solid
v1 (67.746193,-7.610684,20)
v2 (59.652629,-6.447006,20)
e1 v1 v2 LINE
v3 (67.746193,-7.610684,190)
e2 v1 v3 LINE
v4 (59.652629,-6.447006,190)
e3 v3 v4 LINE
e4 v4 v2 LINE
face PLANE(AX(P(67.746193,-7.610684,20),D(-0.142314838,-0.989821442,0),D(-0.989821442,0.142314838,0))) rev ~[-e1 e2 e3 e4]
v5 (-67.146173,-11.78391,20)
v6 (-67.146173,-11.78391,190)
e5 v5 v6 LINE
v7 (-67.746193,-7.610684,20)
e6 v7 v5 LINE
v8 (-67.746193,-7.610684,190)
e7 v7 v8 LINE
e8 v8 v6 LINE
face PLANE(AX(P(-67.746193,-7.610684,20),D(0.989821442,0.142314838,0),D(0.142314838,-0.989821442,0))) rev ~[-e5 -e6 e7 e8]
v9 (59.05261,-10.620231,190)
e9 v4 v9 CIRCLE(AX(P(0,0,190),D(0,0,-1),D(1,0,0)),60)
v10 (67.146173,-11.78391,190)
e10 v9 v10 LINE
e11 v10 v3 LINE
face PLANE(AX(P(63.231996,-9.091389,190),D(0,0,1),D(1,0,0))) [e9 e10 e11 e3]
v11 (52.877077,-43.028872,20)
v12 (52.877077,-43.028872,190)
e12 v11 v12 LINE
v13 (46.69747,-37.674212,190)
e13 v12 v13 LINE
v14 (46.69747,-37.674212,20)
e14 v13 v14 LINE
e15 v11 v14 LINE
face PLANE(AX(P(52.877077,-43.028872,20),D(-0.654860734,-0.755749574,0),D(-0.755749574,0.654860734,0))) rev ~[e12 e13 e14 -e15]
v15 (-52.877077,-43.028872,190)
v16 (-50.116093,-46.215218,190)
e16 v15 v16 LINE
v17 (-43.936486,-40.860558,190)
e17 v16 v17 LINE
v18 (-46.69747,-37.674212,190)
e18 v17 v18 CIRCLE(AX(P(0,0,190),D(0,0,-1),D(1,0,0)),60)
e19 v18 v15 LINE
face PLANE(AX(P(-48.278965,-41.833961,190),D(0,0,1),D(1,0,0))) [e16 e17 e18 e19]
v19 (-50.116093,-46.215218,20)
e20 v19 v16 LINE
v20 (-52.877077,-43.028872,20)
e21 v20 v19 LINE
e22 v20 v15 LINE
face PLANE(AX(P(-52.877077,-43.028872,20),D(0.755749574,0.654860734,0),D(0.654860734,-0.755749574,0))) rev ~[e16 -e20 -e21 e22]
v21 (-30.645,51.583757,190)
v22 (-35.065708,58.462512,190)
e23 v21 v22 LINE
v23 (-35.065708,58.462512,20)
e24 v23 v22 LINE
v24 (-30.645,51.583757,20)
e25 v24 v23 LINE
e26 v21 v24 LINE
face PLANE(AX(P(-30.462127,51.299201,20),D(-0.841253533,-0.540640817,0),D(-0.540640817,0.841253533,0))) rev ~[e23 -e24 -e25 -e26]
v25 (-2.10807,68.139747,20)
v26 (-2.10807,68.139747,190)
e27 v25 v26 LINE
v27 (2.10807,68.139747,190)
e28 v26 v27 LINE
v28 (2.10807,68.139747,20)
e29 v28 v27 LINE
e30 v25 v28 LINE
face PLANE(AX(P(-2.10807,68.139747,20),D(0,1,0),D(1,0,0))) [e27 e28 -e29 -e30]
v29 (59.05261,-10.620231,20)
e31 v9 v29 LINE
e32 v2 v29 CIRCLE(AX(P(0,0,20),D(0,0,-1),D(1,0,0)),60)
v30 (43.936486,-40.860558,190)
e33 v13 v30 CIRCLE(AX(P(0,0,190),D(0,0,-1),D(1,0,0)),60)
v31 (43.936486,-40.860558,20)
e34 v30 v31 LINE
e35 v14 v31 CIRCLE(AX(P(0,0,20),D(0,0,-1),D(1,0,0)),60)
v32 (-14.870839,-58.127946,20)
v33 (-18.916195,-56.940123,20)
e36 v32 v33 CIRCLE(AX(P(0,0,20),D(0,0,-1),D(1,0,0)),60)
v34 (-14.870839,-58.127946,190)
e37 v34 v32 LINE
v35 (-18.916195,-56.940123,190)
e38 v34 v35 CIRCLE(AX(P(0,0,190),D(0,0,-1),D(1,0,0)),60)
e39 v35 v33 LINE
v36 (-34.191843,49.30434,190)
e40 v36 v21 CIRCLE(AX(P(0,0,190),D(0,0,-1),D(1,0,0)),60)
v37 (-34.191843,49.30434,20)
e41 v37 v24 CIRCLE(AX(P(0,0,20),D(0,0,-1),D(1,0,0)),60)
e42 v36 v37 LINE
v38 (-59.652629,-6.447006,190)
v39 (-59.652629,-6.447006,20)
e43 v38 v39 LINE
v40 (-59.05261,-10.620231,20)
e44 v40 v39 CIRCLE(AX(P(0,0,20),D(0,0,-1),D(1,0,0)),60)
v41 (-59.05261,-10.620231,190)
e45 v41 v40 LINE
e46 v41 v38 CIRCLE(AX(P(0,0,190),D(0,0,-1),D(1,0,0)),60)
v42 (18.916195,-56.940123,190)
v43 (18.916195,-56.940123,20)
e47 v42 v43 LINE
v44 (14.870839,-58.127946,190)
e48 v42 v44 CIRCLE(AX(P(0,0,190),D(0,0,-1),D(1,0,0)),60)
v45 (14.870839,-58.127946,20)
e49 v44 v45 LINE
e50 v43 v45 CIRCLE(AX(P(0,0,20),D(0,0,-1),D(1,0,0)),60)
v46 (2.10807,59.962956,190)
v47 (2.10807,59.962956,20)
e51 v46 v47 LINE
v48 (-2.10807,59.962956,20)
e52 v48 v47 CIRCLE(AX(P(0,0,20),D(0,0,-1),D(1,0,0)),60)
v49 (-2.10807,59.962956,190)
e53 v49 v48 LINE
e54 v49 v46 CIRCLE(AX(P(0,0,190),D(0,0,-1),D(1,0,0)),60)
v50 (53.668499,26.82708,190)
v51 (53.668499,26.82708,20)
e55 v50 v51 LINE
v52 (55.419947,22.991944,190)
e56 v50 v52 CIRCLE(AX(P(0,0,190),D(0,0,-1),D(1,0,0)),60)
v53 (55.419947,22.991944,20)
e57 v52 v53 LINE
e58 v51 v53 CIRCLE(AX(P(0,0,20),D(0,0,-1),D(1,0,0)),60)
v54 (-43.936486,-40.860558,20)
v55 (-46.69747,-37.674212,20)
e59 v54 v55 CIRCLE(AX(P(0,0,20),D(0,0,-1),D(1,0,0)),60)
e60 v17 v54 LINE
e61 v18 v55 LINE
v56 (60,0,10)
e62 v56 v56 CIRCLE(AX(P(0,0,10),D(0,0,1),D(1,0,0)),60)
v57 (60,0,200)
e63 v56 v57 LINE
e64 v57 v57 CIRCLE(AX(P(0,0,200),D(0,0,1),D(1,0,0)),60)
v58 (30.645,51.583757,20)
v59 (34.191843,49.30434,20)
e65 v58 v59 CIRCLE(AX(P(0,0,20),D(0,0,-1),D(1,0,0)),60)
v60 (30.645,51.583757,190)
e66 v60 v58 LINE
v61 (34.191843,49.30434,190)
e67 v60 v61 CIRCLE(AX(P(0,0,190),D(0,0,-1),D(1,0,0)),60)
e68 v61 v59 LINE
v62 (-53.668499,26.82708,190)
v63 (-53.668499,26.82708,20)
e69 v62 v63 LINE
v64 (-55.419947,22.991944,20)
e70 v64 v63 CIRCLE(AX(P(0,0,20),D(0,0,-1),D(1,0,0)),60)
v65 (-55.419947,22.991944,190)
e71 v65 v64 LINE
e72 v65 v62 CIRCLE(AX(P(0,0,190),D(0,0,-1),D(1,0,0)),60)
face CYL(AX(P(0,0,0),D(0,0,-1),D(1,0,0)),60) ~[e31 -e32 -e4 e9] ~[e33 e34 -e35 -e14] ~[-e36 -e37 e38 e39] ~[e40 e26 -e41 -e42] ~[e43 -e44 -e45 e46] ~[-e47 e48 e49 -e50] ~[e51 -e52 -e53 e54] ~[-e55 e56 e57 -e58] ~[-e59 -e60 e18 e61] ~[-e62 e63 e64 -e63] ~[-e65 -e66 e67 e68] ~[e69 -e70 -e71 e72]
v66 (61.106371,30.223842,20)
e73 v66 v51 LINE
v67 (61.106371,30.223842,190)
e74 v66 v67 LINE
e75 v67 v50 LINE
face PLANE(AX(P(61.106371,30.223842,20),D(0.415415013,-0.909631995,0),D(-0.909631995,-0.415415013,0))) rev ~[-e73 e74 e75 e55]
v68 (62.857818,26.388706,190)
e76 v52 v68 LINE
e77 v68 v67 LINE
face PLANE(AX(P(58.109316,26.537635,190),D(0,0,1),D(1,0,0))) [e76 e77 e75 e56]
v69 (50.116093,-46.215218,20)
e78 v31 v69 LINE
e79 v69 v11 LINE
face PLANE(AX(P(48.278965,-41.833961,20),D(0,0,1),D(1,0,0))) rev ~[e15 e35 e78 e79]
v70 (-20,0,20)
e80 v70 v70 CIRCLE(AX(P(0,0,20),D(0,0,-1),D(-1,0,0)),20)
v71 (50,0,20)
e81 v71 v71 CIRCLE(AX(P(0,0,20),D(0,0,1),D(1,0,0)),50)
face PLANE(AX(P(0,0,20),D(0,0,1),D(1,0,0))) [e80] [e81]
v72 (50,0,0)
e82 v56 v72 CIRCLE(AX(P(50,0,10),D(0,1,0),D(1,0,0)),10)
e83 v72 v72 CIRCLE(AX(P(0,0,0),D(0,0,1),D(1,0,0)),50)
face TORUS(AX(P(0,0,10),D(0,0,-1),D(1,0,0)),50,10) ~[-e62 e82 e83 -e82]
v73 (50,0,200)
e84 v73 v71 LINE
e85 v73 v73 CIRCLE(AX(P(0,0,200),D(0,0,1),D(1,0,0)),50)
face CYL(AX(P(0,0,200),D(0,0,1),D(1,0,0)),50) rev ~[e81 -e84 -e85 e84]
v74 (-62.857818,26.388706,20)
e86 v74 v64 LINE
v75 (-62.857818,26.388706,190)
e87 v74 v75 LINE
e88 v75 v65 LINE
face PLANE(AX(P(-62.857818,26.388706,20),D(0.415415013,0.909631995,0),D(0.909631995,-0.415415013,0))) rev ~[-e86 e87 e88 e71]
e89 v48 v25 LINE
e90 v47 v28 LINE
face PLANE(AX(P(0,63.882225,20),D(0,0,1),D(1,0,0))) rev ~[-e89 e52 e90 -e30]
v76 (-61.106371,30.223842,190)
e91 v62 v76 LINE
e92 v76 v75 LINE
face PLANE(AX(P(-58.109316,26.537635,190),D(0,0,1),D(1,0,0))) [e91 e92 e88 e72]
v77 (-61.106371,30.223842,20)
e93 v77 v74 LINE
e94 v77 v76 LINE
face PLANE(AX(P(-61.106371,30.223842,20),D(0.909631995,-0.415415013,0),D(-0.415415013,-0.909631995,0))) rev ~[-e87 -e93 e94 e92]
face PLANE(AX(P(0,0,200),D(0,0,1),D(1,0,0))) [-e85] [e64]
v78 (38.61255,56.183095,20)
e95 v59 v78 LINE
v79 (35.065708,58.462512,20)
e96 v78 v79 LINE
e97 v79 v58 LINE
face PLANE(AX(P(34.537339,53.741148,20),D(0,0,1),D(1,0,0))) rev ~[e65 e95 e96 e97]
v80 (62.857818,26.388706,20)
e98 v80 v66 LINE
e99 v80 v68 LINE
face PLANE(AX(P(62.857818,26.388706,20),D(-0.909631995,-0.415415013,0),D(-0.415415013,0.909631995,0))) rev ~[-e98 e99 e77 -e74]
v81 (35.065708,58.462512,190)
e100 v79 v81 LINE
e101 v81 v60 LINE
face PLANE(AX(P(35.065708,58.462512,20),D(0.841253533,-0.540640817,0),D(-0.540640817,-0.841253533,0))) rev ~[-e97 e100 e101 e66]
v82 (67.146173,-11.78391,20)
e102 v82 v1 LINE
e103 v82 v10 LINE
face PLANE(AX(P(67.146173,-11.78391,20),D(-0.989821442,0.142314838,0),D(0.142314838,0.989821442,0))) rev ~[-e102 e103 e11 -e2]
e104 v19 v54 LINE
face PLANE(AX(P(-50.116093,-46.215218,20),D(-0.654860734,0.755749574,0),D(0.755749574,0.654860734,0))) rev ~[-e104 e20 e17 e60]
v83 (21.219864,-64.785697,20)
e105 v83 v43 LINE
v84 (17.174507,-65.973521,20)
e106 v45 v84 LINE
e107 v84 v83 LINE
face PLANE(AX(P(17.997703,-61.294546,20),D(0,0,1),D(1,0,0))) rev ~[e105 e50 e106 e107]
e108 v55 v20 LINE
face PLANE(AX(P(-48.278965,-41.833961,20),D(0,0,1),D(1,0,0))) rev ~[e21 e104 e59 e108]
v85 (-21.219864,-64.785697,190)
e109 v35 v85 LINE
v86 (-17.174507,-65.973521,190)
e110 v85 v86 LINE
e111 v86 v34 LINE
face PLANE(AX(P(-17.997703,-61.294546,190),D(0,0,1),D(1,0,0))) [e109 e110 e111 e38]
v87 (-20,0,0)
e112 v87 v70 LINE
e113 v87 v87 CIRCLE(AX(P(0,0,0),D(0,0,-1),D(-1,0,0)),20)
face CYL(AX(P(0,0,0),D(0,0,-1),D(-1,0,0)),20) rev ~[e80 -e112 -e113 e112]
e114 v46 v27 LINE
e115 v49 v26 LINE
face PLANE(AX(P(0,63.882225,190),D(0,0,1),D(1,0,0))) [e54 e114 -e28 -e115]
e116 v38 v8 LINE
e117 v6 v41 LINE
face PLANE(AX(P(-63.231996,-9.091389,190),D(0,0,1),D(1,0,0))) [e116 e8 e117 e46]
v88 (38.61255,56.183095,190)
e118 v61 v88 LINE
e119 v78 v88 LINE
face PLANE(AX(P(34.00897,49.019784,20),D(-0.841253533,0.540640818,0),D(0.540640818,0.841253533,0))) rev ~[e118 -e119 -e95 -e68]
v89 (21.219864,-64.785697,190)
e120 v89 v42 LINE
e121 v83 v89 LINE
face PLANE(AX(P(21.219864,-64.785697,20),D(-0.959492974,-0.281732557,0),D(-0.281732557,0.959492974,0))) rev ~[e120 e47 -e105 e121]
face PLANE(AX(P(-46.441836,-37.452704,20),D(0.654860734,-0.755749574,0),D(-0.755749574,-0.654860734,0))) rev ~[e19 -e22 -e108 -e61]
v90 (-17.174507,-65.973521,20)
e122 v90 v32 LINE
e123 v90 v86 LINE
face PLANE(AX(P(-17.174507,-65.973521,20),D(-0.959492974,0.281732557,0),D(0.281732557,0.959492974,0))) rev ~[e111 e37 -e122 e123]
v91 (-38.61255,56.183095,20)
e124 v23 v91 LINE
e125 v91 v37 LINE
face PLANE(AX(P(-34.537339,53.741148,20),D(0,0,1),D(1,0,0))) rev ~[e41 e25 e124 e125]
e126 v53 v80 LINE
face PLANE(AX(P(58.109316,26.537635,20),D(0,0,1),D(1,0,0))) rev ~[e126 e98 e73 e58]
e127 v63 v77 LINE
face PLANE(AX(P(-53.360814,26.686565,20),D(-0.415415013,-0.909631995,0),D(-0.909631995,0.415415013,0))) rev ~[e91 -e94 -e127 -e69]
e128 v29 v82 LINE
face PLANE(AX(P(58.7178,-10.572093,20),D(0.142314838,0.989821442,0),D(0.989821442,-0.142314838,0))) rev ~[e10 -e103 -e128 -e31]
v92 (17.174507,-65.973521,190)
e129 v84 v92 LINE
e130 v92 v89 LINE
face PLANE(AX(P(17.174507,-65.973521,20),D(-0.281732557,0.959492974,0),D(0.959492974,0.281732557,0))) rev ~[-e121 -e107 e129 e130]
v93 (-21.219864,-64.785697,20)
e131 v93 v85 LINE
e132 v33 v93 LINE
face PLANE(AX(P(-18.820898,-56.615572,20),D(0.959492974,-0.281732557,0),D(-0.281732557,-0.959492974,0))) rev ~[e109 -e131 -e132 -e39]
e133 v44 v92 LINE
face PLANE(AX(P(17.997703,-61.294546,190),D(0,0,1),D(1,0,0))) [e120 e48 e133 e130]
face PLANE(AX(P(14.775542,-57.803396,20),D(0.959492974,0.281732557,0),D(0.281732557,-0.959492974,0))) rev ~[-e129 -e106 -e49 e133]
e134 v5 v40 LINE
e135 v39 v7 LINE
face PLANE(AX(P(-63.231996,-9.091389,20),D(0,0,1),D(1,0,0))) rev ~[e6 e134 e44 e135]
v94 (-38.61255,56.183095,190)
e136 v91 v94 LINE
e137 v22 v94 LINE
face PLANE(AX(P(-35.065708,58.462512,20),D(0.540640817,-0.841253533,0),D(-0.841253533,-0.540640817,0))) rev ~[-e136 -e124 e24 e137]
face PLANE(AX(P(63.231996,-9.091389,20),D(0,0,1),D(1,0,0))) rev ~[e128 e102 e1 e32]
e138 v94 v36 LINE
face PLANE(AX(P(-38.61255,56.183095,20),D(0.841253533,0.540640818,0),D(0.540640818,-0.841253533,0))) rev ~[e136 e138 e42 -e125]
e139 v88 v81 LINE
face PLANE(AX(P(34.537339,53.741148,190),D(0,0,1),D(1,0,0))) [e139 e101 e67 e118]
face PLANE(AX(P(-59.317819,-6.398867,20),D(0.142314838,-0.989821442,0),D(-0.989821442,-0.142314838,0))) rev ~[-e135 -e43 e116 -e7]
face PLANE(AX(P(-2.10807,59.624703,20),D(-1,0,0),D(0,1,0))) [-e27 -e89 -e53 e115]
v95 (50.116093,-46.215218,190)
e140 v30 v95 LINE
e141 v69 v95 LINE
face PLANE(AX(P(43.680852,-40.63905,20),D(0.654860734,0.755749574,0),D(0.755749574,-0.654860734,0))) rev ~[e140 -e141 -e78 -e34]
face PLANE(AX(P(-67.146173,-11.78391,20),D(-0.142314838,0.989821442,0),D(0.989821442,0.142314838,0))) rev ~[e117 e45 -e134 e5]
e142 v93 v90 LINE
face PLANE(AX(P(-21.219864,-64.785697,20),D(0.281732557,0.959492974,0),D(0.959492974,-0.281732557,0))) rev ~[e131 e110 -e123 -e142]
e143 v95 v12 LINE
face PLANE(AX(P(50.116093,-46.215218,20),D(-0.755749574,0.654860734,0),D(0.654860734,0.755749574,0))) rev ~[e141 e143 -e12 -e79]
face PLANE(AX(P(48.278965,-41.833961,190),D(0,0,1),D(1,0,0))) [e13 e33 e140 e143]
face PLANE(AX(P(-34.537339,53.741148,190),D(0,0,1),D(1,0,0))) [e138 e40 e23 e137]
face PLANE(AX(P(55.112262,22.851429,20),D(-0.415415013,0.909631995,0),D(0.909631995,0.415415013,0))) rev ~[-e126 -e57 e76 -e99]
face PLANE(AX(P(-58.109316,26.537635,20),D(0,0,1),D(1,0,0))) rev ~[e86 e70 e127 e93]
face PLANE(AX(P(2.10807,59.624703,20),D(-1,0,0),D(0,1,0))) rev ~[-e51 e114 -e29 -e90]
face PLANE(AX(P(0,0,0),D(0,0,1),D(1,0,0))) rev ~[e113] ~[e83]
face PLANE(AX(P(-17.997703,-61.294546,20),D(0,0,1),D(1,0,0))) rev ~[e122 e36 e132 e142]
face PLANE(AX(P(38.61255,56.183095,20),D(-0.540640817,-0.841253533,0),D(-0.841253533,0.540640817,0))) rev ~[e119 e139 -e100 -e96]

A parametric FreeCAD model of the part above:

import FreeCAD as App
import Part
import Sketcher

V = App.Vector


def edges_at(feature, points):
    """Names of the edges that pass closest to the given points."""
    edges = feature.Shape.Edges
    near = lambda p: min(range(len(edges)), key=lambda i: edges[i].distToShape(Part.Vertex(*p))[0])
    return sorted({f"Edge{near(p) + 1}" for p in points})


def add_polygon(sketch, points):
    """Adds a closed chain of lines whose ends are joined by coincident constraints."""
    first, n = sketch.GeometryCount, len(points)
    for a, b in zip(points, points[1:] + points[:1]):
        sketch.addGeometry(Part.LineSegment(App.Vector(*a, 0), App.Vector(*b, 0)), False)
    for i in range(n):
        sketch.addConstraint(Sketcher.Constraint("Coincident", first + i, 2, first + (i + 1) % n, 1))

doc = App.newDocument("Part")
params = doc.addObject("Spreadsheet::Sheet", "Params")
for row, (alias, value) in enumerate([
    ("sketch1_diameter", "120 mm"),
    ("pad1_length", "200 mm"),
    ("sketch2_diameter", "100 mm"),
    ("pocket1_length", "180 mm"),
    ("fillet_radius", "10 mm"),
    ("pad2_length", "170 mm"),
    ("sketch4_diameter", "40 mm"),
    ("pocket2_length", "25 mm"),
], start=1):
    params.set(f"A{row}", alias)
    params.set(f"B{row}", "=" + value)
    params.setAlias(f"B{row}", alias)

body = doc.addObject("PartDesign::Body", "Body")

sketch1 = body.newObject("Sketcher::SketchObject", "Sketch")
sketch1.AttachmentSupport = (doc.getObject("XY_Plane"), [""])
sketch1.MapMode = "FlatFace"
sketch1.addGeometry(Part.Circle(V(0, 0, 0), V(0, 0, 1), 60), False)
sketch1.addConstraint([
    Sketcher.Constraint("Coincident", 0, 3, -1, 1),
    Sketcher.Constraint("Diameter", 0, 120.0),
])
sketch1.setExpression("Constraints[1]", "Params.sketch1_diameter")
pad1 = body.newObject("PartDesign::Pad", "Pad")
pad1.Profile = sketch1
pad1.setExpression("Length", "Params.pad1_length")

sketch2 = body.newObject("Sketcher::SketchObject", "Sketch001")
sketch2.AttachmentSupport = (doc.getObject("XY_Plane"), [""])
sketch2.MapMode = "FlatFace"
sketch2.AttachmentOffset = App.Placement(V(0, 0, 200), App.Rotation())
sketch2.addGeometry(Part.Circle(V(0, 0, 0), V(0, 0, 1), 50), False)
sketch2.addConstraint([
    Sketcher.Constraint("Coincident", 0, 3, -1, 1),
    Sketcher.Constraint("Diameter", 0, 100.0),
])
sketch2.setExpression("Constraints[1]", "Params.sketch2_diameter")
pocket1 = body.newObject("PartDesign::Pocket", "Pocket")
pocket1.Profile = sketch2
pocket1.setExpression("Length", "Params.pocket1_length")
doc.recompute()

fillet = body.newObject("PartDesign::Fillet", "Fillet")
fillet.Base = (pocket1, edges_at(pocket1, [(-60, 0, 0)]))
fillet.setExpression("Radius", "Params.fillet_radius")

sketch3 = body.newObject("Sketcher::SketchObject", "Sketch002")
sketch3.AttachmentSupport = (doc.getObject("XY_Plane"), [""])
sketch3.MapMode = "FlatFace"
sketch3.AttachmentOffset = App.Placement(V(0, 0, 20), App.Rotation())
add_polygon(sketch3, [(-2.1, 68.1), (-2.1, 59.6), (2.1, 59.6), (2.1, 68.1)])
add_polygon(sketch3, [(34, 49), (38.6, 56.2), (35.1, 58.5), (30.5, 51.3)])
add_polygon(sketch3, [(55.1, 22.9), (62.9, 26.4), (61.1, 30.2), (53.4, 26.7)])
add_polygon(sketch3, [(58.7, -10.6), (67.1, -11.8), (67.7, -7.6), (59.3, -6.4)])
add_polygon(sketch3, [(43.7, -40.6), (50.1, -46.2), (52.9, -43), (46.4, -37.5)])
add_polygon(sketch3, [(14.8, -57.8), (17.2, -66), (21.2, -64.8), (18.8, -56.6)])
add_polygon(sketch3, [(-18.8, -56.6), (-21.2, -64.8), (-17.2, -66), (-14.8, -57.8)])
add_polygon(sketch3, [(-46.4, -37.5), (-52.9, -43), (-50.1, -46.2), (-43.7, -40.6)])
add_polygon(sketch3, [(-59.3, -6.4), (-67.7, -7.6), (-67.1, -11.8), (-58.7, -10.6)])
add_polygon(sketch3, [(-53.4, 26.7), (-61.1, 30.2), (-62.9, 26.4), (-55.1, 22.9)])
add_polygon(sketch3, [(-30.5, 51.3), (-35.1, 58.5), (-38.6, 56.2), (-34, 49)])
sketch3.addConstraint([
    Sketcher.Constraint("Vertical", 0),
    Sketcher.Constraint("Horizontal", 1),
    Sketcher.Constraint("Vertical", 2),
    Sketcher.Constraint("Horizontal", 3),
    Sketcher.Constraint("Symmetric", 21, 2, 24, 2, -2),
    Sketcher.Constraint("Symmetric", 20, 2, 25, 2, -2),
    Sketcher.Constraint("Symmetric", 23, 2, 26, 2, -2),
    Sketcher.Constraint("Symmetric", 22, 2, 27, 2, -2),
    Sketcher.Constraint("Symmetric", 17, 2, 28, 2, -2),
    Sketcher.Constraint("Symmetric", 16, 2, 29, 2, -2),
    Sketcher.Constraint("Symmetric", 19, 2, 30, 2, -2),
    Sketcher.Constraint("Symmetric", 18, 2, 31, 2, -2),
    Sketcher.Constraint("Symmetric", 13, 2, 32, 2, -2),
    Sketcher.Constraint("Symmetric", 12, 2, 33, 2, -2),
    Sketcher.Constraint("Symmetric", 15, 2, 34, 2, -2),
    Sketcher.Constraint("Symmetric", 14, 2, 35, 2, -2),
    Sketcher.Constraint("Symmetric", 9, 2, 36, 2, -2),
    Sketcher.Constraint("Symmetric", 8, 2, 37, 2, -2),
    Sketcher.Constraint("Symmetric", 11, 2, 38, 2, -2),
    Sketcher.Constraint("Symmetric", 10, 2, 39, 2, -2),
    Sketcher.Constraint("Symmetric", 5, 2, 40, 2, -2),
    Sketcher.Constraint("Symmetric", 4, 2, 41, 2, -2),
    Sketcher.Constraint("Symmetric", 7, 2, 42, 2, -2),
    Sketcher.Constraint("Symmetric", 6, 2, 43, 2, -2),
    Sketcher.Constraint("Perpendicular", 4, 5),
    Sketcher.Constraint("Perpendicular", 5, 6),
    Sketcher.Constraint("Perpendicular", 6, 7),
    Sketcher.Constraint("Perpendicular", 8, 9),
    Sketcher.Constraint("Perpendicular", 9, 10),
    Sketcher.Constraint("Perpendicular", 10, 11),
    Sketcher.Constraint("Perpendicular", 12, 13),
    Sketcher.Constraint("Perpendicular", 13, 14),
    Sketcher.Constraint("Perpendicular", 14, 15),
    Sketcher.Constraint("Perpendicular", 16, 17),
    Sketcher.Constraint("Perpendicular", 17, 18),
    Sketcher.Constraint("Perpendicular", 18, 19),
    Sketcher.Constraint("Perpendicular", 20, 21),
    Sketcher.Constraint("Perpendicular", 21, 22),
    Sketcher.Constraint("Perpendicular", 22, 23),
    Sketcher.Constraint("Equal", 6, 8),
    Sketcher.Constraint("Equal", 7, 9),
    Sketcher.Constraint("Equal", 10, 12),
    Sketcher.Constraint("Equal", 11, 13),
    Sketcher.Constraint("Equal", 14, 16),
    Sketcher.Constraint("Equal", 15, 17),
    Sketcher.Constraint("Equal", 18, 20),
    Sketcher.Constraint("Equal", 19, 21),
    Sketcher.Constraint("DistanceX", 14, 2, 8, 2, 3.539999),
    Sketcher.Constraint("DistanceX", 1, 1, 1, 2, 4.21614),
    Sketcher.Constraint("DistanceY", -1, 1, 6, 2, 51.299201),
    Sketcher.Constraint("DistanceX", -1, 1, 15, 2, 58.7178),
    Sketcher.Constraint("DistanceX", -1, 1, 22, 2, 18.820898),
    Sketcher.Constraint("DistanceX", 1, 2, 7, 2, 31.9009),
    Sketcher.Constraint("DistanceX", 7, 2, 9, 2, 27.097401),
    Sketcher.Constraint("DistanceY", 15, 2, 8, 2, 36.960799),
    Sketcher.Constraint("DistanceX", 16, 2, 13, 2, 17.6301),
    Sketcher.Constraint("DistanceY", 21, 2, 23, 2, 6.982301),
    Sketcher.Constraint("DistanceY", 27, 2, 28, 2, 13.5867),
    Sketcher.Constraint("DistanceX", 36, 2, 0, 2, 58.998301),
    Sketcher.Constraint("Distance", 5, 4.21614),
    Sketcher.Constraint("DistanceY", 0, 2, 0, 1, 8.515044),
    Sketcher.Constraint("DistanceX", -1, 1, 4, 2, 38.61255),
    Sketcher.Constraint("DistanceY", -1, 1, 5, 2, 58.462512),
    Sketcher.Constraint("DistanceX", -1, 1, 8, 2, 62.857818),
    Sketcher.Constraint("DistanceY", -1, 1, 9, 2, 30.223842),
    Sketcher.Constraint("DistanceX", -1, 1, 19, 2, 43.680852),
    Sketcher.Constraint("DistanceY", 19, 2, -1, 1, 40.63905),
    Sketcher.Constraint("DistanceY", 4, 2, 1, 2, 3.441609),
])
pad2 = body.newObject("PartDesign::Pad", "Pad001")
pad2.Profile = sketch3
pad2.setExpression("Length", "Params.pad2_length")

sketch4 = body.newObject("Sketcher::SketchObject", "Sketch003")
sketch4.AttachmentSupport = (doc.getObject("XY_Plane"), [""])
sketch4.MapMode = "FlatFace"
sketch4.addGeometry(Part.Circle(V(0, 0, 0), V(0, 0, 1), 20), False)
sketch4.addConstraint([
    Sketcher.Constraint("Coincident", 0, 3, -1, 1),
    Sketcher.Constraint("Diameter", 0, 40.0),
])
sketch4.setExpression("Constraints[1]", "Params.sketch4_diameter")
pocket2 = body.newObject("PartDesign::Pocket", "Pocket001")
pocket2.Profile = sketch4
pocket2.setExpression("Length", "Params.pocket2_length")
pocket2.Reversed = True

doc.recompute()
